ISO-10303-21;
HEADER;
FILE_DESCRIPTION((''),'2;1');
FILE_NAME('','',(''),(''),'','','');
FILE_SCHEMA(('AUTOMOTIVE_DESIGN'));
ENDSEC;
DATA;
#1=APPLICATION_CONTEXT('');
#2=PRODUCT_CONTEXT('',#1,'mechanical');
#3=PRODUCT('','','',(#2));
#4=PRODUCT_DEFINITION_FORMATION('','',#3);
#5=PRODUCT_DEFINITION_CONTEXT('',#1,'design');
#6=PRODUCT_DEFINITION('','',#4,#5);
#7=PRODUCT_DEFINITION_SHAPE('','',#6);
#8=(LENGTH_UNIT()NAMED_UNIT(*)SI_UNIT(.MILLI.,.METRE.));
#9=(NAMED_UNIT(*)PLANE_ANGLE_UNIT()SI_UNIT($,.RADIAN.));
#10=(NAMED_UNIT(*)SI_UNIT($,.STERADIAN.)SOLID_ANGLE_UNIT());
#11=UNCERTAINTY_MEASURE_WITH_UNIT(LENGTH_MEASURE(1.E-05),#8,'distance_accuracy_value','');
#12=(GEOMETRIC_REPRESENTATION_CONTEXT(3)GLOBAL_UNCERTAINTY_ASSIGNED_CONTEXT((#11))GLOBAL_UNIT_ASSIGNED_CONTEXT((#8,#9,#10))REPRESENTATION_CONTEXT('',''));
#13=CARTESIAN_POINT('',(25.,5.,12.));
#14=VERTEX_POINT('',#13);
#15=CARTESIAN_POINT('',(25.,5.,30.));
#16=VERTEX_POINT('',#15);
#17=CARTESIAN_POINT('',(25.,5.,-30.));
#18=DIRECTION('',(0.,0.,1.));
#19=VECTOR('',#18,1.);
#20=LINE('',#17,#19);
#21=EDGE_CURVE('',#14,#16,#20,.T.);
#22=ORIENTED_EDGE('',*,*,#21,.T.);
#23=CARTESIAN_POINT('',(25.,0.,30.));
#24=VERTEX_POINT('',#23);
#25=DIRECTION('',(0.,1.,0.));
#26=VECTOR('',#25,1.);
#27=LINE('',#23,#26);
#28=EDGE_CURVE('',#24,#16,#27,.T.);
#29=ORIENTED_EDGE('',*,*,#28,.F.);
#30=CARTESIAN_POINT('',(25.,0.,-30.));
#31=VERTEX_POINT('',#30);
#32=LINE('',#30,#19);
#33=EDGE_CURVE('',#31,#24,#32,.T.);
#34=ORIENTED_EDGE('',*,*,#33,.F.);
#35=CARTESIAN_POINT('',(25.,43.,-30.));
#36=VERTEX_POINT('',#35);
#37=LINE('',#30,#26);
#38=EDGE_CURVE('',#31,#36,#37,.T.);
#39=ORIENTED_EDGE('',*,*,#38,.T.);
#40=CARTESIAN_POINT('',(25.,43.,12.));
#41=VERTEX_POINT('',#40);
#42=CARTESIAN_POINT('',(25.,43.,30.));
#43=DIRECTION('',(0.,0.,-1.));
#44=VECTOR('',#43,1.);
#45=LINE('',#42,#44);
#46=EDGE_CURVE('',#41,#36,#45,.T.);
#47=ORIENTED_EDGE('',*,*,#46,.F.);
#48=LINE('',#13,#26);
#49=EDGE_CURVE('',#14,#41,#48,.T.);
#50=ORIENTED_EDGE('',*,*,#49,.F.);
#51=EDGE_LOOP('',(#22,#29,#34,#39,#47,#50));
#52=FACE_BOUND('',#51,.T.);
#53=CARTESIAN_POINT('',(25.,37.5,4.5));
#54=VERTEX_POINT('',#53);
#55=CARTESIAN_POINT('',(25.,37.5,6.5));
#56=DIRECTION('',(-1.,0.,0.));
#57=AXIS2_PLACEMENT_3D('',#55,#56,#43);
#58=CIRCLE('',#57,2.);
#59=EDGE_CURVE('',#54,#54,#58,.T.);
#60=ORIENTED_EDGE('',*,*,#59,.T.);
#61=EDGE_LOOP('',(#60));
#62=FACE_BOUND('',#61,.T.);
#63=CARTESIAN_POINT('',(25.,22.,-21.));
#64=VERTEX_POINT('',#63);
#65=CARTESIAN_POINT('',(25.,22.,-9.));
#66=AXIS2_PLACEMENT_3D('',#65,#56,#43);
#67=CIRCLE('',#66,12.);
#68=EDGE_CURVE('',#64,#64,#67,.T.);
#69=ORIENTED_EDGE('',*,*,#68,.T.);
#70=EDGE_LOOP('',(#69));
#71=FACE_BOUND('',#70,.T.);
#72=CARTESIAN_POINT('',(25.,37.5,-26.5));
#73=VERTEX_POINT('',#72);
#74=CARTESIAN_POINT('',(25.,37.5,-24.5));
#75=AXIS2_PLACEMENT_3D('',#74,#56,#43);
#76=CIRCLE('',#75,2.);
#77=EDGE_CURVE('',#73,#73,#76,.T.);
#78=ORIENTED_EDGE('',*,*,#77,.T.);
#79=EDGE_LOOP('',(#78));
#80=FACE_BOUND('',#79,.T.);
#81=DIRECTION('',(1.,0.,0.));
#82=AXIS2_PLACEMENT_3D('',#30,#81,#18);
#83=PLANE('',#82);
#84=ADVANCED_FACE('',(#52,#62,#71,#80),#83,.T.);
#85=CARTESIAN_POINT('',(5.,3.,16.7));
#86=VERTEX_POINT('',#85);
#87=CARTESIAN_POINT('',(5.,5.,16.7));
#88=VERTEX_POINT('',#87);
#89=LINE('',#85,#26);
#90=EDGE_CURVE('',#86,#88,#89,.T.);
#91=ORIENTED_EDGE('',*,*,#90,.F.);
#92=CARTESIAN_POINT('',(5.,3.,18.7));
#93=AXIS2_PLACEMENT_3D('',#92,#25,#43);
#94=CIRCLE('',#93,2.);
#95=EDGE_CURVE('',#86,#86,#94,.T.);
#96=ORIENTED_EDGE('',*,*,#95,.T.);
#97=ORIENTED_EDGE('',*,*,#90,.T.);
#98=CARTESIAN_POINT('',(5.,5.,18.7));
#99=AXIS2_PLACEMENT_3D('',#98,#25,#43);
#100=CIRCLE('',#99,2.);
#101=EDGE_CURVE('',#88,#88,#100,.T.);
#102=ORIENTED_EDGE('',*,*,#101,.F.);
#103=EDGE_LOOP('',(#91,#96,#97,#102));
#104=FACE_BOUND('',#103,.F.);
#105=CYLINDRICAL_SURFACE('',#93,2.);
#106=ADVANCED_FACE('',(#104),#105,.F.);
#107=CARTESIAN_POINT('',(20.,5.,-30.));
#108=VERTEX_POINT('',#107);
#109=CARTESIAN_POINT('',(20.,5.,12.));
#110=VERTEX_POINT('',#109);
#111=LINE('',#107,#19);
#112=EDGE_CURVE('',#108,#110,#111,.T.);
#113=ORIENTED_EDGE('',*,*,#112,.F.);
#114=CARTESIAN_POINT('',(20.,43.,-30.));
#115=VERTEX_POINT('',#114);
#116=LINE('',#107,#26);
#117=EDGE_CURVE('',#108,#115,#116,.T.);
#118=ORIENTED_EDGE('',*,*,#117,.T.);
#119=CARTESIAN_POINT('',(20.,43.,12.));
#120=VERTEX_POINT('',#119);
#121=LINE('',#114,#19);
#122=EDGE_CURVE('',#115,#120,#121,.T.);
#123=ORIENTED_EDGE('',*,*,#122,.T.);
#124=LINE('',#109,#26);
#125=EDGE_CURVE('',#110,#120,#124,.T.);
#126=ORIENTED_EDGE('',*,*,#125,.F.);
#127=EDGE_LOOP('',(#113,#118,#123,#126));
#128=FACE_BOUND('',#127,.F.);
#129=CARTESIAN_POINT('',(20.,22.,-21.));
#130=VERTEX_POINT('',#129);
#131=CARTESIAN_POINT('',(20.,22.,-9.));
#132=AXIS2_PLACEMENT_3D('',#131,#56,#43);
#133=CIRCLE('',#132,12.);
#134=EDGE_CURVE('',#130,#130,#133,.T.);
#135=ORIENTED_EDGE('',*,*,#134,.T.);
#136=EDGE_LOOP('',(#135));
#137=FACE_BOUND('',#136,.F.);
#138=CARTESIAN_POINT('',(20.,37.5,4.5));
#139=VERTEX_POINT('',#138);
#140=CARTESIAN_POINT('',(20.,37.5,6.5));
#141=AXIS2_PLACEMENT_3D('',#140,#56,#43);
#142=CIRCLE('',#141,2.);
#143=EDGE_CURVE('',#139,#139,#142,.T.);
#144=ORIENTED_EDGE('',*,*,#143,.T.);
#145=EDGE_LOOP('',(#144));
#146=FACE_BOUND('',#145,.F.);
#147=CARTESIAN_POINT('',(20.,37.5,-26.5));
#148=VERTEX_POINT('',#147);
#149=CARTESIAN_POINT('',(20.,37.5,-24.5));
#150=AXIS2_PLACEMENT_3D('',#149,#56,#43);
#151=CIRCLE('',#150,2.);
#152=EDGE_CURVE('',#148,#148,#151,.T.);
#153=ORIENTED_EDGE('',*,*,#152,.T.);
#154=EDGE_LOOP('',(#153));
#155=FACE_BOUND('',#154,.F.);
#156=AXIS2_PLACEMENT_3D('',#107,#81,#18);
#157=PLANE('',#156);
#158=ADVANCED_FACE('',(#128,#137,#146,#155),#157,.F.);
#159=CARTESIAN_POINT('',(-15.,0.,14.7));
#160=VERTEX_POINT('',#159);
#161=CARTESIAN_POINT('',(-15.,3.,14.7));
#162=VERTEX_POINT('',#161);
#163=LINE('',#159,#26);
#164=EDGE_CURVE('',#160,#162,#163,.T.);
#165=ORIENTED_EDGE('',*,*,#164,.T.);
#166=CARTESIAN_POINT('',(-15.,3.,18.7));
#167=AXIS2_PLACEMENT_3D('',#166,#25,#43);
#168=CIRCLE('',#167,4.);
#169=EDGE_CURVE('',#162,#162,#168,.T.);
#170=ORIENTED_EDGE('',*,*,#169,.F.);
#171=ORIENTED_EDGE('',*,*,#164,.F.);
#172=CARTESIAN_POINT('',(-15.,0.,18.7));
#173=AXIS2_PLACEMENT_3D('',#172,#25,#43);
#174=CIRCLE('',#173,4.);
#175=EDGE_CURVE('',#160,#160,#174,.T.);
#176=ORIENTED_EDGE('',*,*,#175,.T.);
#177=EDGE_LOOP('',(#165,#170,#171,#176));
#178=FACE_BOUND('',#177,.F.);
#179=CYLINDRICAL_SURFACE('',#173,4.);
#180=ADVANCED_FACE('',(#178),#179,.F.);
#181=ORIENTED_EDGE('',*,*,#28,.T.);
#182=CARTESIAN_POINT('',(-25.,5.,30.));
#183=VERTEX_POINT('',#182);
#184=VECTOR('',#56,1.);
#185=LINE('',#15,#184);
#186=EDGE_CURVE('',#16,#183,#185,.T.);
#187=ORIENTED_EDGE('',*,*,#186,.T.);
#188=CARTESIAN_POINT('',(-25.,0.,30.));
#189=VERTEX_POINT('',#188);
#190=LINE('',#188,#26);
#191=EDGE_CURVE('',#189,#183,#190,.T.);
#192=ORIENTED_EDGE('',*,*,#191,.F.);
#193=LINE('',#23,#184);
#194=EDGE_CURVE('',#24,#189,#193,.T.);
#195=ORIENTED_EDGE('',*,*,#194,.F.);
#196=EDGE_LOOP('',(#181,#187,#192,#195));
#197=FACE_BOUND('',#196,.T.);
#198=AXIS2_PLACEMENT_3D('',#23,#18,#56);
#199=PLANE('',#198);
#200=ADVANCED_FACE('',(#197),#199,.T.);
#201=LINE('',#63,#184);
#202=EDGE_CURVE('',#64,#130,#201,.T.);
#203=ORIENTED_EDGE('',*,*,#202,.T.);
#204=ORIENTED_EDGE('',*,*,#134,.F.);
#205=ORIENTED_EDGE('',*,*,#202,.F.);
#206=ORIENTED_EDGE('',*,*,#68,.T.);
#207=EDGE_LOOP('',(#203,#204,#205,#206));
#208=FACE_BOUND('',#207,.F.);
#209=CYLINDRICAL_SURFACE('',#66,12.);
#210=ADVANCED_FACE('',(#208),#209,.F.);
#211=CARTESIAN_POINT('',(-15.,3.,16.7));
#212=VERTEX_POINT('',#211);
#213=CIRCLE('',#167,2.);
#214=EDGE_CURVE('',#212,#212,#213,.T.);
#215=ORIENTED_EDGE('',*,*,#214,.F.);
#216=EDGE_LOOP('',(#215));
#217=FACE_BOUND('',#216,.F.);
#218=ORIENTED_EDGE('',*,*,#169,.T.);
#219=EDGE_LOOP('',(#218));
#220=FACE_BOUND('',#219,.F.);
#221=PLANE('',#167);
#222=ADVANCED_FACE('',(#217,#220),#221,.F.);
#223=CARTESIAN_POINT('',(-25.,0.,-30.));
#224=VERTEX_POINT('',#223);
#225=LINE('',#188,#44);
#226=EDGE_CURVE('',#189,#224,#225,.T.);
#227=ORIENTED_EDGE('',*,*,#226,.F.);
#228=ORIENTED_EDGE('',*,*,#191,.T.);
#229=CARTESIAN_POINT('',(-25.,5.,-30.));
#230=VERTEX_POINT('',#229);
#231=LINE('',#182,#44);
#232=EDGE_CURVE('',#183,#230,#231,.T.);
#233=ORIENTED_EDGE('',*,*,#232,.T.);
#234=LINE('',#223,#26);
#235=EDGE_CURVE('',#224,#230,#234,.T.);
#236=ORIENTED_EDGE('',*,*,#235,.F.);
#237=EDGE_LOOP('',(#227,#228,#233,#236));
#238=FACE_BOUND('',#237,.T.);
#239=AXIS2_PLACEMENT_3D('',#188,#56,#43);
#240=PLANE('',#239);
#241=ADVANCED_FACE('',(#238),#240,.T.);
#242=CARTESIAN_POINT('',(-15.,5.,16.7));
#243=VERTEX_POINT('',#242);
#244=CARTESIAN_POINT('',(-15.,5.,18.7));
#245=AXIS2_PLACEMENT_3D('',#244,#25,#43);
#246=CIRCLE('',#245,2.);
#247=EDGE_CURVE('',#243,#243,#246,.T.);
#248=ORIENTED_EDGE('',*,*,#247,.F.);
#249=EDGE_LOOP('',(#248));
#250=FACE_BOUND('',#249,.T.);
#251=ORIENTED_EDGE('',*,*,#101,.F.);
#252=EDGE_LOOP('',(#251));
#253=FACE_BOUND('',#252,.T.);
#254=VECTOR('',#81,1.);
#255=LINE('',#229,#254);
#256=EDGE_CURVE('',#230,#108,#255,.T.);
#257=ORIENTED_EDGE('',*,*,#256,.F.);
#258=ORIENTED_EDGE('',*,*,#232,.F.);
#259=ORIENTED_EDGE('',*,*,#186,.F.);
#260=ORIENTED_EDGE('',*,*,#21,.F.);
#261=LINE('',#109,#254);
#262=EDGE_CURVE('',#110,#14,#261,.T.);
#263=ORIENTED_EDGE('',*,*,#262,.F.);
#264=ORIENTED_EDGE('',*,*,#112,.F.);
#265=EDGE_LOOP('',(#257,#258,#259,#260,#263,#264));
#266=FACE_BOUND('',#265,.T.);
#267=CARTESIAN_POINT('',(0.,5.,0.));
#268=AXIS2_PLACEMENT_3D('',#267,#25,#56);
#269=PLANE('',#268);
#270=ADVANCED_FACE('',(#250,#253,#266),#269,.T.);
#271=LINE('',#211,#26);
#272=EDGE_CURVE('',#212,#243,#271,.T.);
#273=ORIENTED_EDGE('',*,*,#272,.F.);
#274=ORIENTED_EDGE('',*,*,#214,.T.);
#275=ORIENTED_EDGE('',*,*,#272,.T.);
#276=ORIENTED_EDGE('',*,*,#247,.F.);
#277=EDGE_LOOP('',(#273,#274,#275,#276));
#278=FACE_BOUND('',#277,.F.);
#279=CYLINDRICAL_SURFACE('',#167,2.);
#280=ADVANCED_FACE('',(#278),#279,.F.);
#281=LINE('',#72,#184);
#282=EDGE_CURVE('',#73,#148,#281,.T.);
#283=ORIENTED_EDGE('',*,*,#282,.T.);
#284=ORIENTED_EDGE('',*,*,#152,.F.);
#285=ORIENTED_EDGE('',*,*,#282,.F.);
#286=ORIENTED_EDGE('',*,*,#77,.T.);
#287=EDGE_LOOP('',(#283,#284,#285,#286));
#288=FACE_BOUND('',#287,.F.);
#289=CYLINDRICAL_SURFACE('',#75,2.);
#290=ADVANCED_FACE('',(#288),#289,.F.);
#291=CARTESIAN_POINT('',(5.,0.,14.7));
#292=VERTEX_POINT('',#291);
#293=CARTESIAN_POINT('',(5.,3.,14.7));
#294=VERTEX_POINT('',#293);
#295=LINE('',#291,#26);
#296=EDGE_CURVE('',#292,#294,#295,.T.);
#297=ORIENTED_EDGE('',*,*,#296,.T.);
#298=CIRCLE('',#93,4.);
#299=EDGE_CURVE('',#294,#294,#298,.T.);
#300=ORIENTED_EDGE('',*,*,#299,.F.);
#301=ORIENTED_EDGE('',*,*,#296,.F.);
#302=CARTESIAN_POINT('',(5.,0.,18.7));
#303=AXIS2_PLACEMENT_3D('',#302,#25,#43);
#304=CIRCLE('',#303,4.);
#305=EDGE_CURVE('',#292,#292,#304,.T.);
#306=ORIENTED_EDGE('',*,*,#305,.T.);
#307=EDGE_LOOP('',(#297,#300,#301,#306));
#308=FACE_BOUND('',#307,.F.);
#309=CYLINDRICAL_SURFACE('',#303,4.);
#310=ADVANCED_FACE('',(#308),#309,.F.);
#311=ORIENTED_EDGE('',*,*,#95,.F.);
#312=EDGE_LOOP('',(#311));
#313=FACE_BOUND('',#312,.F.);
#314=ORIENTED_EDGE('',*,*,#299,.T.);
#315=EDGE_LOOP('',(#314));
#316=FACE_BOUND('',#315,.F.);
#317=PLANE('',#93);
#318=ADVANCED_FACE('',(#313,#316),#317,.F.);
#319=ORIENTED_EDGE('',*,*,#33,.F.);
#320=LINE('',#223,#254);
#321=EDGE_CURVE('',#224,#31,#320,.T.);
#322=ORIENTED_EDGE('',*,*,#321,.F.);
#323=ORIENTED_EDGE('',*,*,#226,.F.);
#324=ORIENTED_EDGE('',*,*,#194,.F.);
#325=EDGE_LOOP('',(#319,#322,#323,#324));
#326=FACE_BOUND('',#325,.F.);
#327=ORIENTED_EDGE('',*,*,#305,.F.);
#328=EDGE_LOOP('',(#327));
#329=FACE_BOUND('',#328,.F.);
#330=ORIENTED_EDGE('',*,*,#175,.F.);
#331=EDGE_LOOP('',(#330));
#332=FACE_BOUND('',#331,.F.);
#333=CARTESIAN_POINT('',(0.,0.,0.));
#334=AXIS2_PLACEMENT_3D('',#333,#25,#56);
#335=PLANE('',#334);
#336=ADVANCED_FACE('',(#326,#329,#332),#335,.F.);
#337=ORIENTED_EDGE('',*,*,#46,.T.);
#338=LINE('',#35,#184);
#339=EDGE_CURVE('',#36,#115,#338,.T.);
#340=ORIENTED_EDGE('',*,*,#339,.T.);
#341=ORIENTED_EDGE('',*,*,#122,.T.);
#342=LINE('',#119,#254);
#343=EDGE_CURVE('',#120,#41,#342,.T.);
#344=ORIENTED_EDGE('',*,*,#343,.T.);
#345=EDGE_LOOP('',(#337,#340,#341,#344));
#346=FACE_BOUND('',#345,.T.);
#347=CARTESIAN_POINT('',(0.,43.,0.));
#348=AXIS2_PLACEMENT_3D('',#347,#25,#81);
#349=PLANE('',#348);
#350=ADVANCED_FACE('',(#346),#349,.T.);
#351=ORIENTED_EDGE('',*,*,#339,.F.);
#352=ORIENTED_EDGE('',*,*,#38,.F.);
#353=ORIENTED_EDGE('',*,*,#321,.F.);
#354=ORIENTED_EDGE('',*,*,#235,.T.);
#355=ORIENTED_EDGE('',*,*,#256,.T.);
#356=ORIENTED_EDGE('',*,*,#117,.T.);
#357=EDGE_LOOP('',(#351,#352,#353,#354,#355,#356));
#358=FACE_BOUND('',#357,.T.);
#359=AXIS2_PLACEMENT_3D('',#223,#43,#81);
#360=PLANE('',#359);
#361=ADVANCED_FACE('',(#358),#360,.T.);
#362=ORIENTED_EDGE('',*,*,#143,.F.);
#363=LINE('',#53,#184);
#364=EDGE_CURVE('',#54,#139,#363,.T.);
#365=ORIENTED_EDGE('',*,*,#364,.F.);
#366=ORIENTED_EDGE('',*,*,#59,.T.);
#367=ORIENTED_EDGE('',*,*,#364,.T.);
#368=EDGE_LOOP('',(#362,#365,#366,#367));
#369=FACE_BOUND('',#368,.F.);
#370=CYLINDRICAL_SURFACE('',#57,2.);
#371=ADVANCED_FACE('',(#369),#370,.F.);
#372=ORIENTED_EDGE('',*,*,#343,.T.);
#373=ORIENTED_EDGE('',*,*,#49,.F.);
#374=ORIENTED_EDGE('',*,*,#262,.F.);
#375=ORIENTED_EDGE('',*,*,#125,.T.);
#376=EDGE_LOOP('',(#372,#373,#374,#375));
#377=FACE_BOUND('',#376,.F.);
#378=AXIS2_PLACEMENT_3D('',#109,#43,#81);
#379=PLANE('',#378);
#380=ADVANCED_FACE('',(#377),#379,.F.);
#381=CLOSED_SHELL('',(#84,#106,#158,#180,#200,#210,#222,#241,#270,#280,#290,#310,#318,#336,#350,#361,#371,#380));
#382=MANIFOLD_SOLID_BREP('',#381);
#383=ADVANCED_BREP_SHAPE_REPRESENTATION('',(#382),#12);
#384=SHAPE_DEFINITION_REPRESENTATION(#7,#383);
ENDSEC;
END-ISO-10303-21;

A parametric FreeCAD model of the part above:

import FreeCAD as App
import Part
import Sketcher
from FreeCAD import Vector
Q = App.Units.Quantity

doc = App.newDocument("Part")
body = doc.addObject("PartDesign::Body", "Body")

# Sketch on XZ plane
sketch1 = doc.addObject("Sketcher::SketchObject", "Sketch")
body.addObject(sketch1)
sketch1.AttachmentSupport = (doc.XZ_Plane, [""])
sketch1.MapMode = "FlatFace"
sketch1.addGeometry([
    Part.LineSegment(Vector(-25, 30, 0), Vector(25, 30, 0)),
    Part.LineSegment(Vector(25, 30, 0), Vector(25, -30, 0)),
    Part.LineSegment(Vector(25, -30, 0), Vector(-25, -30, 0)),
    Part.LineSegment(Vector(-25, -30, 0), Vector(-25, 30, 0)),
], False)
sketch1.addConstraint([
    Sketcher.Constraint("Coincident", 0, 2, 1, 1),
    Sketcher.Constraint("Coincident", 1, 2, 2, 1),
    Sketcher.Constraint("Coincident", 2, 2, 3, 1),
    Sketcher.Constraint("Coincident", 3, 2, 0, 1),
    Sketcher.Constraint("Horizontal", 0),
    Sketcher.Constraint("Vertical", 1),
    Sketcher.Constraint("Horizontal", 2),
    Sketcher.Constraint("Vertical", 3),
    Sketcher.Constraint("Symmetric", 0, 2, 2, 2, -1, 1),
    Sketcher.Constraint("DistanceX", 0, 1, 0, 2, Q("50 mm")),
    Sketcher.Constraint("DistanceY", 1, 2, 1, 1, Q("60 mm")),
])
pad1 = doc.addObject("PartDesign::Pad", "Pad")
body.addObject(pad1)
pad1.Profile = sketch1
pad1.Length = 5
pad1.Reversed = True

# Sketch on XZ plane
sketch2 = doc.addObject("Sketcher::SketchObject", "Sketch001")
body.addObject(sketch2)
sketch2.AttachmentSupport = (doc.XZ_Plane, [""])
sketch2.MapMode = "FlatFace"
sketch2.AttachmentOffset = App.Placement(Vector(0, 0, -5), App.Rotation())
sketch2.addGeometry([
    Part.LineSegment(Vector(20, 12, 0), Vector(25, 12, 0)),
    Part.LineSegment(Vector(25, 12, 0), Vector(25, -30, 0)),
    Part.LineSegment(Vector(25, -30, 0), Vector(20, -30, 0)),
    Part.LineSegment(Vector(20, -30, 0), Vector(20, 12, 0)),
], False)
sketch2.addConstraint([
    Sketcher.Constraint("Coincident", 0, 2, 1, 1),
    Sketcher.Constraint("Coincident", 1, 2, 2, 1),
    Sketcher.Constraint("Coincident", 2, 2, 3, 1),
    Sketcher.Constraint("Coincident", 3, 2, 0, 1),
    Sketcher.Constraint("Horizontal", 0),
    Sketcher.Constraint("Vertical", 1),
    Sketcher.Constraint("Horizontal", 2),
    Sketcher.Constraint("Vertical", 3),
    Sketcher.Constraint("DistanceX", 0, 1, 0, 2, Q("5 mm")),
    Sketcher.Constraint("DistanceY", 1, 2, 1, 1, Q("42 mm")),
    Sketcher.Constraint("DistanceX", -1, 1, 0, 2, Q("25 mm")),
    Sketcher.Constraint("DistanceY", -1, 1, 0, 2, Q("12 mm")),
])
pad2 = doc.addObject("PartDesign::Pad", "Pad001")
body.addObject(pad2)
pad2.Profile = sketch2
pad2.Length = 38
pad2.Reversed = True

# Sketch on YZ plane
sketch3 = doc.addObject("Sketcher::SketchObject", "Sketch002")
body.addObject(sketch3)
sketch3.AttachmentSupport = (doc.YZ_Plane, [""])
sketch3.MapMode = "FlatFace"
sketch3.AttachmentOffset = App.Placement(Vector(0, 0, 25), App.Rotation())
sketch3.addGeometry(Part.Circle(Vector(22, -9, 0), Vector(0, 0, 1), 12), False)
sketch3.addConstraint([
    Sketcher.Constraint("Diameter", 0, Q("24 mm")),
    Sketcher.Constraint("DistanceX", -1, 1, 0, 3, Q("22 mm")),
    Sketcher.Constraint("DistanceY", 0, 3, -1, 1, Q("9 mm")),
])
doc.recompute()
hole = doc.addObject("PartDesign::Hole", "Hole")
body.addObject(hole)
hole.Profile = sketch3
hole.ThreadType = "None"
hole.Diameter = 24
hole.DepthType = "ThroughAll"

# Sketch on YZ plane
sketch4 = doc.addObject("Sketcher::SketchObject", "Sketch003")
body.addObject(sketch4)
sketch4.AttachmentSupport = (doc.YZ_Plane, [""])
sketch4.MapMode = "FlatFace"
sketch4.AttachmentOffset = App.Placement(Vector(0, 0, 25), App.Rotation())
sketch4.addGeometry([
    Part.Circle(Vector(37.5, 6.5, 0), Vector(0, 0, 1), 2),
    Part.Circle(Vector(37.5, -24.5, 0), Vector(0, 0, 1), 2),
], False)
sketch4.addConstraint([
    Sketcher.Constraint("Equal", 0, 1),
    Sketcher.Constraint("Vertical", 0, 3, 1, 3),
    Sketcher.Constraint("Diameter", 0, Q("4 mm")),
    Sketcher.Constraint("DistanceY", 1, 3, 0, 3, Q("31 mm")),
    Sketcher.Constraint("DistanceX", -1, 1, 0, 3, Q("37.5 mm")),
    Sketcher.Constraint("DistanceY", -1, 1, 0, 3, Q("6.5 mm")),
])
doc.recompute()
hole2 = doc.addObject("PartDesign::Hole", "Hole001")
body.addObject(hole2)
hole2.Profile = sketch4
hole2.ThreadType = "None"
hole2.Diameter = 4
hole2.DepthType = "ThroughAll"

# Sketch on XZ plane
sketch5 = doc.addObject("Sketcher::SketchObject", "Sketch004")
body.addObject(sketch5)
sketch5.AttachmentSupport = (doc.XZ_Plane, [""])
sketch5.MapMode = "FlatFace"
sketch5.addGeometry([
    Part.Circle(Vector(-15, 18.7, 0), Vector(0, 0, 1), 2),
    Part.Circle(Vector(5, 18.7, 0), Vector(0, 0, 1), 2),
], False)
sketch5.addConstraint([
    Sketcher.Constraint("Equal", 0, 1),
    Sketcher.Constraint("Horizontal", 0, 3, 1, 3),
    Sketcher.Constraint("Diameter", 0, Q("4 mm")),
    Sketcher.Constraint("DistanceX", 0, 3, -1, 1, Q("15 mm")),
    Sketcher.Constraint("DistanceX", -1, 1, 1, 3, Q("5 mm")),
    Sketcher.Constraint("DistanceY", -1, 1, 0, 3, Q("18.7 mm")),
])
doc.recompute()
hole3 = doc.addObject("PartDesign::Hole", "Hole002")
body.addObject(hole3)
hole3.Profile = sketch5
hole3.ThreadType = "None"
hole3.Diameter = 4
hole3.DepthType = "ThroughAll"
hole3.HoleCutType = "Counterbore"
hole3.HoleCutDiameter = 8
hole3.HoleCutDepth = 3

doc.recompute()
